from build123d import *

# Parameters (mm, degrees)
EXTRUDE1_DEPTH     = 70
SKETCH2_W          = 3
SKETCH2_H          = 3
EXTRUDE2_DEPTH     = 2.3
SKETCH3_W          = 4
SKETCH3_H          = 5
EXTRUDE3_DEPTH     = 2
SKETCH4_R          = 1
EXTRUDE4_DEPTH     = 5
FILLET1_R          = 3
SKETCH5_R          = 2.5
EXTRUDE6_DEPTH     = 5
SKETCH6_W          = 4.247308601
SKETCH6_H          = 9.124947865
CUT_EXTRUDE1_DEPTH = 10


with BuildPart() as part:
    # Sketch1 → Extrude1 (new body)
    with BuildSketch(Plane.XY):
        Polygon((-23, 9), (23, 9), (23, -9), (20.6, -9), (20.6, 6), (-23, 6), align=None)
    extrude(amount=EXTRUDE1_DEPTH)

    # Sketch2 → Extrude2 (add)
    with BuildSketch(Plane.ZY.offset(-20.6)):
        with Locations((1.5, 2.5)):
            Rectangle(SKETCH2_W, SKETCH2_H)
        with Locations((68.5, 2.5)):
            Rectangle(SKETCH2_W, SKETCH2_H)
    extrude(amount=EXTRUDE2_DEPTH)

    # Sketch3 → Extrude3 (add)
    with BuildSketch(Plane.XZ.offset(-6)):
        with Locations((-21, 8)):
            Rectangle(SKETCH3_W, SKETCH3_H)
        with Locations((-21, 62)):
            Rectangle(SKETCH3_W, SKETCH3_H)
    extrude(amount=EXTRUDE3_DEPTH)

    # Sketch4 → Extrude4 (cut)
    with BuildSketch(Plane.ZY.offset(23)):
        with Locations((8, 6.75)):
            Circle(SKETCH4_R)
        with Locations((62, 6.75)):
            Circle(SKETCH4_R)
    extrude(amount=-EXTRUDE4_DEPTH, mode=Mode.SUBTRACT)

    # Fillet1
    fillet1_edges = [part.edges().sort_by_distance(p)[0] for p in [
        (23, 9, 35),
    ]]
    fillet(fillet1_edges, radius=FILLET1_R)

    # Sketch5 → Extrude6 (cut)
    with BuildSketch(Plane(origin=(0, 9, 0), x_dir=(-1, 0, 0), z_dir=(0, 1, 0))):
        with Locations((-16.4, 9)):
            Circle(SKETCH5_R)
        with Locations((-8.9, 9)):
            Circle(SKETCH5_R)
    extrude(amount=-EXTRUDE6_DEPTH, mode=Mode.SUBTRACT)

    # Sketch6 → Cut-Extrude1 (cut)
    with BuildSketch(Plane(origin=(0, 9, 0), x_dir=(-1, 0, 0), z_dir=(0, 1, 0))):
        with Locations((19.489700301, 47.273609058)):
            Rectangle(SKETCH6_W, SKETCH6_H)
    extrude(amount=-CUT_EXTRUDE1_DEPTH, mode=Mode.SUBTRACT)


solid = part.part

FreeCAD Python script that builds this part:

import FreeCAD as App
import Part
import Sketcher
from FreeCAD import Vector


def edges_at(feature, points):
    """Names of the edges that pass closest to the given points."""
    edges = feature.Shape.Edges
    near = lambda p: min(range(len(edges)), key=lambda i: edges[i].distToShape(Part.Vertex(*p))[0])
    return sorted({f"Edge{near(p) + 1}" for p in points})

doc = App.newDocument("Part")
params = doc.addObject("Spreadsheet::Sheet", "Params")
for row, (alias, value) in enumerate([
    ("sketch1_width", "46 mm"),
    ("sketch1_height", "3 mm"),
    ("sketch1_height2", "15 mm"),
    ("sketch1_width2", "43.6 mm"),
    ("pad1_length", "70 mm"),
    ("sketch2_width", "3 mm"),
    ("pad2_length", "2.3 mm"),
    ("sketch3_width", "4 mm"),
    ("sketch3_height", "5 mm"),
    ("pad3_length", "2 mm"),
    ("sketch4_diameter", "2 mm"),
    ("pocket1_length", "5 mm"),
    ("fillet_radius", "3 mm"),
    ("sketch5_diameter", "5 mm"),
    ("pocket2_length", "5 mm"),
    ("pocket3_length", "10 mm"),
], start=1):
    params.set(f"A{row}", alias)
    params.set(f"B{row}", "=" + value)
    params.setAlias(f"B{row}", alias)

body = doc.addObject("PartDesign::Body", "Body")

# Sketch on XY plane
sketch1 = doc.addObject("Sketcher::SketchObject", "Sketch")
body.addObject(sketch1)
sketch1.AttachmentSupport = (doc.XY_Plane, [""])
sketch1.MapMode = "FlatFace"
sketch1.addGeometry([
    Part.LineSegment(Vector(23, 9, 0), Vector(-23, 9, 0)),  # 0
    Part.LineSegment(Vector(-23, 9, 0), Vector(-23, 6, 0)),  # 1
    Part.LineSegment(Vector(-23, 6, 0), Vector(20.6, 6, 0)),  # 2
    Part.LineSegment(Vector(20.6, 6, 0), Vector(20.6, -9, 0)),  # 3
    Part.LineSegment(Vector(20.6, -9, 0), Vector(23, -9, 0)),  # 4
    Part.LineSegment(Vector(23, -9, 0), Vector(23, 9, 0)),  # 5
], False)
sketch1.addConstraint([
    Sketcher.Constraint("Coincident", 0, 2, 1, 1),
    Sketcher.Constraint("Coincident", 1, 2, 2, 1),
    Sketcher.Constraint("Coincident", 2, 2, 3, 1),
    Sketcher.Constraint("Coincident", 3, 2, 4, 1),
    Sketcher.Constraint("Coincident", 4, 2, 5, 1),
    Sketcher.Constraint("Coincident", 5, 2, 0, 1),
    Sketcher.Constraint("Horizontal", 0),
    Sketcher.Constraint("Vertical", 1),
    Sketcher.Constraint("Horizontal", 2),
    Sketcher.Constraint("Vertical", 3),
    Sketcher.Constraint("Horizontal", 4),
    Sketcher.Constraint("Vertical", 5),
    Sketcher.Constraint("Symmetric", 0, 2, 4, 2, -1, 1),
    Sketcher.Constraint("DistanceX", 0, 2, 0, 1, 46.0),
    Sketcher.Constraint("DistanceY", 1, 2, 1, 1, 3.0),
    Sketcher.Constraint("DistanceY", 3, 2, 3, 1, 15.0),
    Sketcher.Constraint("DistanceX", 2, 1, 2, 2, 43.6),
])
sketch1.setExpression("Constraints[13]", "Params.sketch1_width")
sketch1.setExpression("Constraints[14]", "Params.sketch1_height")
sketch1.setExpression("Constraints[15]", "Params.sketch1_height2")
sketch1.setExpression("Constraints[16]", "Params.sketch1_width2")
pad1 = doc.addObject("PartDesign::Pad", "Pad")
body.addObject(pad1)
pad1.Profile = sketch1
pad1.setExpression("Length", "Params.pad1_length")

# Sketch on YZ plane
sketch2 = doc.addObject("Sketcher::SketchObject", "Sketch001")
body.addObject(sketch2)
sketch2.AttachmentSupport = (doc.YZ_Plane, [""])
sketch2.MapMode = "FlatFace"
sketch2.AttachmentOffset = App.Placement(Vector(0, 0, 20.6), App.Rotation())
sketch2.addGeometry([
    Part.LineSegment(Vector(4, 0, 0), Vector(1, 0, 0)),  # 0
    Part.LineSegment(Vector(1, 0, 0), Vector(1, 3, 0)),  # 1
    Part.LineSegment(Vector(1, 3, 0), Vector(4, 3, 0)),  # 2
    Part.LineSegment(Vector(4, 3, 0), Vector(4, 0, 0)),  # 3
    Part.LineSegment(Vector(4, 67, 0), Vector(1, 67, 0)),  # 4
    Part.LineSegment(Vector(1, 67, 0), Vector(1, 70, 0)),  # 5
    Part.LineSegment(Vector(1, 70, 0), Vector(4, 70, 0)),  # 6
    Part.LineSegment(Vector(4, 70, 0), Vector(4, 67, 0)),  # 7
], False)
sketch2.addConstraint([
    Sketcher.Constraint("Coincident", 0, 2, 1, 1),
    Sketcher.Constraint("Coincident", 1, 2, 2, 1),
    Sketcher.Constraint("Coincident", 2, 2, 3, 1),
    Sketcher.Constraint("Coincident", 3, 2, 0, 1),
    Sketcher.Constraint("Coincident", 4, 2, 5, 1),
    Sketcher.Constraint("Coincident", 5, 2, 6, 1),
    Sketcher.Constraint("Coincident", 6, 2, 7, 1),
    Sketcher.Constraint("Coincident", 7, 2, 4, 1),
    Sketcher.Constraint("Horizontal", 0),
    Sketcher.Constraint("Vertical", 1),
    Sketcher.Constraint("Horizontal", 2),
    Sketcher.Constraint("Vertical", 3),
    Sketcher.Constraint("Horizontal", 4),
    Sketcher.Constraint("Vertical", 5),
    Sketcher.Constraint("Horizontal", 6),
    Sketcher.Constraint("Vertical", 7),
    Sketcher.Constraint("PointOnObject", 0, 2, -1),
    Sketcher.Constraint("Vertical", 1, 2, 4, 2),
    Sketcher.Constraint("Vertical", 3, 2, 6, 2),
    Sketcher.Constraint("Equal", 6, 1),
    Sketcher.Constraint("Equal", 3, 5),
    Sketcher.Constraint("DistanceX", 0, 2, 0, 1, 3.0),
    Sketcher.Constraint("DistanceX", -1, 1, 0, 2, 1.0),
    Sketcher.Constraint("DistanceY", -1, 1, 4, 2, 67.0),
])
sketch2.setExpression("Constraints[21]", "Params.sketch2_width")
pad2 = doc.addObject("PartDesign::Pad", "Pad001")
body.addObject(pad2)
pad2.Profile = sketch2
pad2.setExpression("Length", "Params.pad2_length")
pad2.Reversed = True

# Sketch on XZ plane
sketch3 = doc.addObject("Sketcher::SketchObject", "Sketch002")
body.addObject(sketch3)
sketch3.AttachmentSupport = (doc.XZ_Plane, [""])
sketch3.MapMode = "FlatFace"
sketch3.AttachmentOffset = App.Placement(Vector(0, 0, -6), App.Rotation())
sketch3.addGeometry([
    Part.LineSegment(Vector(-23, 10.5, 0), Vector(-23, 5.5, 0)),  # 0
    Part.LineSegment(Vector(-23, 5.5, 0), Vector(-19, 5.5, 0)),  # 1
    Part.LineSegment(Vector(-19, 5.5, 0), Vector(-19, 10.5, 0)),  # 2
    Part.LineSegment(Vector(-19, 10.5, 0), Vector(-23, 10.5, 0)),  # 3
    Part.LineSegment(Vector(-23, 64.5, 0), Vector(-23, 59.5, 0)),  # 4
    Part.LineSegment(Vector(-23, 59.5, 0), Vector(-19, 59.5, 0)),  # 5
    Part.LineSegment(Vector(-19, 59.5, 0), Vector(-19, 64.5, 0)),  # 6
    Part.LineSegment(Vector(-19, 64.5, 0), Vector(-23, 64.5, 0)),  # 7
], False)
sketch3.addConstraint([
    Sketcher.Constraint("Coincident", 0, 2, 1, 1),
    Sketcher.Constraint("Coincident", 1, 2, 2, 1),
    Sketcher.Constraint("Coincident", 2, 2, 3, 1),
    Sketcher.Constraint("Coincident", 3, 2, 0, 1),
    Sketcher.Constraint("Coincident", 4, 2, 5, 1),
    Sketcher.Constraint("Coincident", 5, 2, 6, 1),
    Sketcher.Constraint("Coincident", 6, 2, 7, 1),
    Sketcher.Constraint("Coincident", 7, 2, 4, 1),
    Sketcher.Constraint("Vertical", 0),
    Sketcher.Constraint("Horizontal", 1),
    Sketcher.Constraint("Vertical", 2),
    Sketcher.Constraint("Horizontal", 3),
    Sketcher.Constraint("Vertical", 4),
    Sketcher.Constraint("Horizontal", 5),
    Sketcher.Constraint("Vertical", 6),
    Sketcher.Constraint("Horizontal", 7),
    Sketcher.Constraint("Vertical", 3, 2, 4, 2),
    Sketcher.Constraint("Vertical", 2, 2, 5, 2),
    Sketcher.Constraint("Equal", 2, 4),
    Sketcher.Constraint("DistanceX", 1, 1, 1, 2, 4.0),
    Sketcher.Constraint("DistanceY", 0, 2, 0, 1, 5.0),
    Sketcher.Constraint("DistanceX", 0, 2, -1, 1, 23.0),
    Sketcher.Constraint("DistanceY", 3, 2, 4, 2, 49.0),
    Sketcher.Constraint("DistanceY", -1, 1, 0, 2, 5.5),
])
sketch3.setExpression("Constraints[19]", "Params.sketch3_width")
sketch3.setExpression("Constraints[20]", "Params.sketch3_height")
pad3 = doc.addObject("PartDesign::Pad", "Pad002")
body.addObject(pad3)
pad3.Profile = sketch3
pad3.setExpression("Length", "Params.pad3_length")

# Sketch on YZ plane
sketch4 = doc.addObject("Sketcher::SketchObject", "Sketch003")
body.addObject(sketch4)
sketch4.AttachmentSupport = (doc.YZ_Plane, [""])
sketch4.MapMode = "FlatFace"
sketch4.AttachmentOffset = App.Placement(Vector(0, 0, -23), App.Rotation())
sketch4.addGeometry([
    Part.Circle(Vector(6.8, 8, 0), Vector(0, 0, 1), 1),
    Part.Circle(Vector(6.8, 62, 0), Vector(0, 0, 1), 1),
], False)
sketch4.addConstraint([
    Sketcher.Constraint("Equal", 0, 1),
    Sketcher.Constraint("Vertical", 0, 3, 1, 3),
    Sketcher.Constraint("Diameter", 0, 2.0),
    Sketcher.Constraint("DistanceY", -1, 1, 0, 3, 8.0),
    Sketcher.Constraint("DistanceY", -1, 1, 1, 3, 62.0),
    Sketcher.Constraint("DistanceX", -1, 1, 0, 3, 6.75),
])
sketch4.setExpression("Constraints[2]", "Params.sketch4_diameter")
pocket1 = doc.addObject("PartDesign::Pocket", "Pocket")
body.addObject(pocket1)
pocket1.Profile = sketch4
pocket1.setExpression("Length", "Params.pocket1_length")
pocket1.Reversed = True
doc.recompute()

fillet = doc.addObject("PartDesign::Fillet", "Fillet")
body.addObject(fillet)
fillet.Base = (pocket1, edges_at(pocket1, [(23, 9, 35)]))
fillet.setExpression("Radius", "Params.fillet_radius")

# Sketch on XZ plane
sketch5 = doc.addObject("Sketcher::SketchObject", "Sketch004")
body.addObject(sketch5)
sketch5.AttachmentSupport = (doc.XZ_Plane, [""])
sketch5.MapMode = "FlatFace"
sketch5.AttachmentOffset = App.Placement(Vector(0, 0, -9), App.Rotation())
sketch5.addGeometry([
    Part.Circle(Vector(16.4, 9, 0), Vector(0, 0, 1), 2.5),
    Part.Circle(Vector(8.9, 9, 0), Vector(0, 0, 1), 2.5),
], False)
sketch5.addConstraint([
    Sketcher.Constraint("Equal", 0, 1),
    Sketcher.Constraint("Horizontal", 0, 3, 1, 3),
    Sketcher.Constraint("Diameter", 0, 5.0),
    Sketcher.Constraint("DistanceY", -1, 1, 0, 3, 9.0),
    Sketcher.Constraint("DistanceX", -1, 1, 0, 3, 16.4),
    Sketcher.Constraint("DistanceX", -1, 1, 1, 3, 8.9),
])
sketch5.setExpression("Constraints[2]", "Params.sketch5_diameter")
pocket2 = doc.addObject("PartDesign::Pocket", "Pocket001")
body.addObject(pocket2)
pocket2.Profile = sketch5
pocket2.setExpression("Length", "Params.pocket2_length")
pocket2.Reversed = True

# Sketch on XZ plane
sketch6 = doc.addObject("Sketcher::SketchObject", "Sketch005")
body.addObject(sketch6)
sketch6.AttachmentSupport = (doc.XZ_Plane, [""])
sketch6.MapMode = "FlatFace"
sketch6.AttachmentOffset = App.Placement(Vector(0, 0, -9), App.Rotation())
sketch6.addGeometry([
    Part.LineSegment(Vector(-17.4, 51.8, 0), Vector(-17.4, 42.7, 0)),
    Part.LineSegment(Vector(-17.4, 42.7, 0), Vector(-21.6, 42.7, 0)),
    Part.LineSegment(Vector(-21.6, 42.7, 0), Vector(-21.6, 51.8, 0)),
    Part.LineSegment(Vector(-21.6, 51.8, 0), Vector(-17.4, 51.8, 0)),
], False)
sketch6.addConstraint([
    Sketcher.Constraint("Coincident", 0, 2, 1, 1),
    Sketcher.Constraint("Coincident", 1, 2, 2, 1),
    Sketcher.Constraint("Coincident", 2, 2, 3, 1),
    Sketcher.Constraint("Coincident", 3, 2, 0, 1),
    Sketcher.Constraint("Vertical", 0),
    Sketcher.Constraint("Horizontal", 1),
    Sketcher.Constraint("Vertical", 2),
    Sketcher.Constraint("Horizontal", 3),
    Sketcher.Constraint("DistanceX", 1, 2, 1, 1, 4.247309),
    Sketcher.Constraint("DistanceY", 0, 2, 0, 1, 9.124948),
    Sketcher.Constraint("DistanceX", 0, 2, -1, 1, 17.366046),
    Sketcher.Constraint("DistanceY", -1, 1, 0, 2, 42.711135),
])
pocket3 = doc.addObject("PartDesign::Pocket", "Pocket002")
body.addObject(pocket3)
pocket3.Profile = sketch6
pocket3.setExpression("Length", "Params.pocket3_length")
pocket3.Reversed = True

doc.recompute()
